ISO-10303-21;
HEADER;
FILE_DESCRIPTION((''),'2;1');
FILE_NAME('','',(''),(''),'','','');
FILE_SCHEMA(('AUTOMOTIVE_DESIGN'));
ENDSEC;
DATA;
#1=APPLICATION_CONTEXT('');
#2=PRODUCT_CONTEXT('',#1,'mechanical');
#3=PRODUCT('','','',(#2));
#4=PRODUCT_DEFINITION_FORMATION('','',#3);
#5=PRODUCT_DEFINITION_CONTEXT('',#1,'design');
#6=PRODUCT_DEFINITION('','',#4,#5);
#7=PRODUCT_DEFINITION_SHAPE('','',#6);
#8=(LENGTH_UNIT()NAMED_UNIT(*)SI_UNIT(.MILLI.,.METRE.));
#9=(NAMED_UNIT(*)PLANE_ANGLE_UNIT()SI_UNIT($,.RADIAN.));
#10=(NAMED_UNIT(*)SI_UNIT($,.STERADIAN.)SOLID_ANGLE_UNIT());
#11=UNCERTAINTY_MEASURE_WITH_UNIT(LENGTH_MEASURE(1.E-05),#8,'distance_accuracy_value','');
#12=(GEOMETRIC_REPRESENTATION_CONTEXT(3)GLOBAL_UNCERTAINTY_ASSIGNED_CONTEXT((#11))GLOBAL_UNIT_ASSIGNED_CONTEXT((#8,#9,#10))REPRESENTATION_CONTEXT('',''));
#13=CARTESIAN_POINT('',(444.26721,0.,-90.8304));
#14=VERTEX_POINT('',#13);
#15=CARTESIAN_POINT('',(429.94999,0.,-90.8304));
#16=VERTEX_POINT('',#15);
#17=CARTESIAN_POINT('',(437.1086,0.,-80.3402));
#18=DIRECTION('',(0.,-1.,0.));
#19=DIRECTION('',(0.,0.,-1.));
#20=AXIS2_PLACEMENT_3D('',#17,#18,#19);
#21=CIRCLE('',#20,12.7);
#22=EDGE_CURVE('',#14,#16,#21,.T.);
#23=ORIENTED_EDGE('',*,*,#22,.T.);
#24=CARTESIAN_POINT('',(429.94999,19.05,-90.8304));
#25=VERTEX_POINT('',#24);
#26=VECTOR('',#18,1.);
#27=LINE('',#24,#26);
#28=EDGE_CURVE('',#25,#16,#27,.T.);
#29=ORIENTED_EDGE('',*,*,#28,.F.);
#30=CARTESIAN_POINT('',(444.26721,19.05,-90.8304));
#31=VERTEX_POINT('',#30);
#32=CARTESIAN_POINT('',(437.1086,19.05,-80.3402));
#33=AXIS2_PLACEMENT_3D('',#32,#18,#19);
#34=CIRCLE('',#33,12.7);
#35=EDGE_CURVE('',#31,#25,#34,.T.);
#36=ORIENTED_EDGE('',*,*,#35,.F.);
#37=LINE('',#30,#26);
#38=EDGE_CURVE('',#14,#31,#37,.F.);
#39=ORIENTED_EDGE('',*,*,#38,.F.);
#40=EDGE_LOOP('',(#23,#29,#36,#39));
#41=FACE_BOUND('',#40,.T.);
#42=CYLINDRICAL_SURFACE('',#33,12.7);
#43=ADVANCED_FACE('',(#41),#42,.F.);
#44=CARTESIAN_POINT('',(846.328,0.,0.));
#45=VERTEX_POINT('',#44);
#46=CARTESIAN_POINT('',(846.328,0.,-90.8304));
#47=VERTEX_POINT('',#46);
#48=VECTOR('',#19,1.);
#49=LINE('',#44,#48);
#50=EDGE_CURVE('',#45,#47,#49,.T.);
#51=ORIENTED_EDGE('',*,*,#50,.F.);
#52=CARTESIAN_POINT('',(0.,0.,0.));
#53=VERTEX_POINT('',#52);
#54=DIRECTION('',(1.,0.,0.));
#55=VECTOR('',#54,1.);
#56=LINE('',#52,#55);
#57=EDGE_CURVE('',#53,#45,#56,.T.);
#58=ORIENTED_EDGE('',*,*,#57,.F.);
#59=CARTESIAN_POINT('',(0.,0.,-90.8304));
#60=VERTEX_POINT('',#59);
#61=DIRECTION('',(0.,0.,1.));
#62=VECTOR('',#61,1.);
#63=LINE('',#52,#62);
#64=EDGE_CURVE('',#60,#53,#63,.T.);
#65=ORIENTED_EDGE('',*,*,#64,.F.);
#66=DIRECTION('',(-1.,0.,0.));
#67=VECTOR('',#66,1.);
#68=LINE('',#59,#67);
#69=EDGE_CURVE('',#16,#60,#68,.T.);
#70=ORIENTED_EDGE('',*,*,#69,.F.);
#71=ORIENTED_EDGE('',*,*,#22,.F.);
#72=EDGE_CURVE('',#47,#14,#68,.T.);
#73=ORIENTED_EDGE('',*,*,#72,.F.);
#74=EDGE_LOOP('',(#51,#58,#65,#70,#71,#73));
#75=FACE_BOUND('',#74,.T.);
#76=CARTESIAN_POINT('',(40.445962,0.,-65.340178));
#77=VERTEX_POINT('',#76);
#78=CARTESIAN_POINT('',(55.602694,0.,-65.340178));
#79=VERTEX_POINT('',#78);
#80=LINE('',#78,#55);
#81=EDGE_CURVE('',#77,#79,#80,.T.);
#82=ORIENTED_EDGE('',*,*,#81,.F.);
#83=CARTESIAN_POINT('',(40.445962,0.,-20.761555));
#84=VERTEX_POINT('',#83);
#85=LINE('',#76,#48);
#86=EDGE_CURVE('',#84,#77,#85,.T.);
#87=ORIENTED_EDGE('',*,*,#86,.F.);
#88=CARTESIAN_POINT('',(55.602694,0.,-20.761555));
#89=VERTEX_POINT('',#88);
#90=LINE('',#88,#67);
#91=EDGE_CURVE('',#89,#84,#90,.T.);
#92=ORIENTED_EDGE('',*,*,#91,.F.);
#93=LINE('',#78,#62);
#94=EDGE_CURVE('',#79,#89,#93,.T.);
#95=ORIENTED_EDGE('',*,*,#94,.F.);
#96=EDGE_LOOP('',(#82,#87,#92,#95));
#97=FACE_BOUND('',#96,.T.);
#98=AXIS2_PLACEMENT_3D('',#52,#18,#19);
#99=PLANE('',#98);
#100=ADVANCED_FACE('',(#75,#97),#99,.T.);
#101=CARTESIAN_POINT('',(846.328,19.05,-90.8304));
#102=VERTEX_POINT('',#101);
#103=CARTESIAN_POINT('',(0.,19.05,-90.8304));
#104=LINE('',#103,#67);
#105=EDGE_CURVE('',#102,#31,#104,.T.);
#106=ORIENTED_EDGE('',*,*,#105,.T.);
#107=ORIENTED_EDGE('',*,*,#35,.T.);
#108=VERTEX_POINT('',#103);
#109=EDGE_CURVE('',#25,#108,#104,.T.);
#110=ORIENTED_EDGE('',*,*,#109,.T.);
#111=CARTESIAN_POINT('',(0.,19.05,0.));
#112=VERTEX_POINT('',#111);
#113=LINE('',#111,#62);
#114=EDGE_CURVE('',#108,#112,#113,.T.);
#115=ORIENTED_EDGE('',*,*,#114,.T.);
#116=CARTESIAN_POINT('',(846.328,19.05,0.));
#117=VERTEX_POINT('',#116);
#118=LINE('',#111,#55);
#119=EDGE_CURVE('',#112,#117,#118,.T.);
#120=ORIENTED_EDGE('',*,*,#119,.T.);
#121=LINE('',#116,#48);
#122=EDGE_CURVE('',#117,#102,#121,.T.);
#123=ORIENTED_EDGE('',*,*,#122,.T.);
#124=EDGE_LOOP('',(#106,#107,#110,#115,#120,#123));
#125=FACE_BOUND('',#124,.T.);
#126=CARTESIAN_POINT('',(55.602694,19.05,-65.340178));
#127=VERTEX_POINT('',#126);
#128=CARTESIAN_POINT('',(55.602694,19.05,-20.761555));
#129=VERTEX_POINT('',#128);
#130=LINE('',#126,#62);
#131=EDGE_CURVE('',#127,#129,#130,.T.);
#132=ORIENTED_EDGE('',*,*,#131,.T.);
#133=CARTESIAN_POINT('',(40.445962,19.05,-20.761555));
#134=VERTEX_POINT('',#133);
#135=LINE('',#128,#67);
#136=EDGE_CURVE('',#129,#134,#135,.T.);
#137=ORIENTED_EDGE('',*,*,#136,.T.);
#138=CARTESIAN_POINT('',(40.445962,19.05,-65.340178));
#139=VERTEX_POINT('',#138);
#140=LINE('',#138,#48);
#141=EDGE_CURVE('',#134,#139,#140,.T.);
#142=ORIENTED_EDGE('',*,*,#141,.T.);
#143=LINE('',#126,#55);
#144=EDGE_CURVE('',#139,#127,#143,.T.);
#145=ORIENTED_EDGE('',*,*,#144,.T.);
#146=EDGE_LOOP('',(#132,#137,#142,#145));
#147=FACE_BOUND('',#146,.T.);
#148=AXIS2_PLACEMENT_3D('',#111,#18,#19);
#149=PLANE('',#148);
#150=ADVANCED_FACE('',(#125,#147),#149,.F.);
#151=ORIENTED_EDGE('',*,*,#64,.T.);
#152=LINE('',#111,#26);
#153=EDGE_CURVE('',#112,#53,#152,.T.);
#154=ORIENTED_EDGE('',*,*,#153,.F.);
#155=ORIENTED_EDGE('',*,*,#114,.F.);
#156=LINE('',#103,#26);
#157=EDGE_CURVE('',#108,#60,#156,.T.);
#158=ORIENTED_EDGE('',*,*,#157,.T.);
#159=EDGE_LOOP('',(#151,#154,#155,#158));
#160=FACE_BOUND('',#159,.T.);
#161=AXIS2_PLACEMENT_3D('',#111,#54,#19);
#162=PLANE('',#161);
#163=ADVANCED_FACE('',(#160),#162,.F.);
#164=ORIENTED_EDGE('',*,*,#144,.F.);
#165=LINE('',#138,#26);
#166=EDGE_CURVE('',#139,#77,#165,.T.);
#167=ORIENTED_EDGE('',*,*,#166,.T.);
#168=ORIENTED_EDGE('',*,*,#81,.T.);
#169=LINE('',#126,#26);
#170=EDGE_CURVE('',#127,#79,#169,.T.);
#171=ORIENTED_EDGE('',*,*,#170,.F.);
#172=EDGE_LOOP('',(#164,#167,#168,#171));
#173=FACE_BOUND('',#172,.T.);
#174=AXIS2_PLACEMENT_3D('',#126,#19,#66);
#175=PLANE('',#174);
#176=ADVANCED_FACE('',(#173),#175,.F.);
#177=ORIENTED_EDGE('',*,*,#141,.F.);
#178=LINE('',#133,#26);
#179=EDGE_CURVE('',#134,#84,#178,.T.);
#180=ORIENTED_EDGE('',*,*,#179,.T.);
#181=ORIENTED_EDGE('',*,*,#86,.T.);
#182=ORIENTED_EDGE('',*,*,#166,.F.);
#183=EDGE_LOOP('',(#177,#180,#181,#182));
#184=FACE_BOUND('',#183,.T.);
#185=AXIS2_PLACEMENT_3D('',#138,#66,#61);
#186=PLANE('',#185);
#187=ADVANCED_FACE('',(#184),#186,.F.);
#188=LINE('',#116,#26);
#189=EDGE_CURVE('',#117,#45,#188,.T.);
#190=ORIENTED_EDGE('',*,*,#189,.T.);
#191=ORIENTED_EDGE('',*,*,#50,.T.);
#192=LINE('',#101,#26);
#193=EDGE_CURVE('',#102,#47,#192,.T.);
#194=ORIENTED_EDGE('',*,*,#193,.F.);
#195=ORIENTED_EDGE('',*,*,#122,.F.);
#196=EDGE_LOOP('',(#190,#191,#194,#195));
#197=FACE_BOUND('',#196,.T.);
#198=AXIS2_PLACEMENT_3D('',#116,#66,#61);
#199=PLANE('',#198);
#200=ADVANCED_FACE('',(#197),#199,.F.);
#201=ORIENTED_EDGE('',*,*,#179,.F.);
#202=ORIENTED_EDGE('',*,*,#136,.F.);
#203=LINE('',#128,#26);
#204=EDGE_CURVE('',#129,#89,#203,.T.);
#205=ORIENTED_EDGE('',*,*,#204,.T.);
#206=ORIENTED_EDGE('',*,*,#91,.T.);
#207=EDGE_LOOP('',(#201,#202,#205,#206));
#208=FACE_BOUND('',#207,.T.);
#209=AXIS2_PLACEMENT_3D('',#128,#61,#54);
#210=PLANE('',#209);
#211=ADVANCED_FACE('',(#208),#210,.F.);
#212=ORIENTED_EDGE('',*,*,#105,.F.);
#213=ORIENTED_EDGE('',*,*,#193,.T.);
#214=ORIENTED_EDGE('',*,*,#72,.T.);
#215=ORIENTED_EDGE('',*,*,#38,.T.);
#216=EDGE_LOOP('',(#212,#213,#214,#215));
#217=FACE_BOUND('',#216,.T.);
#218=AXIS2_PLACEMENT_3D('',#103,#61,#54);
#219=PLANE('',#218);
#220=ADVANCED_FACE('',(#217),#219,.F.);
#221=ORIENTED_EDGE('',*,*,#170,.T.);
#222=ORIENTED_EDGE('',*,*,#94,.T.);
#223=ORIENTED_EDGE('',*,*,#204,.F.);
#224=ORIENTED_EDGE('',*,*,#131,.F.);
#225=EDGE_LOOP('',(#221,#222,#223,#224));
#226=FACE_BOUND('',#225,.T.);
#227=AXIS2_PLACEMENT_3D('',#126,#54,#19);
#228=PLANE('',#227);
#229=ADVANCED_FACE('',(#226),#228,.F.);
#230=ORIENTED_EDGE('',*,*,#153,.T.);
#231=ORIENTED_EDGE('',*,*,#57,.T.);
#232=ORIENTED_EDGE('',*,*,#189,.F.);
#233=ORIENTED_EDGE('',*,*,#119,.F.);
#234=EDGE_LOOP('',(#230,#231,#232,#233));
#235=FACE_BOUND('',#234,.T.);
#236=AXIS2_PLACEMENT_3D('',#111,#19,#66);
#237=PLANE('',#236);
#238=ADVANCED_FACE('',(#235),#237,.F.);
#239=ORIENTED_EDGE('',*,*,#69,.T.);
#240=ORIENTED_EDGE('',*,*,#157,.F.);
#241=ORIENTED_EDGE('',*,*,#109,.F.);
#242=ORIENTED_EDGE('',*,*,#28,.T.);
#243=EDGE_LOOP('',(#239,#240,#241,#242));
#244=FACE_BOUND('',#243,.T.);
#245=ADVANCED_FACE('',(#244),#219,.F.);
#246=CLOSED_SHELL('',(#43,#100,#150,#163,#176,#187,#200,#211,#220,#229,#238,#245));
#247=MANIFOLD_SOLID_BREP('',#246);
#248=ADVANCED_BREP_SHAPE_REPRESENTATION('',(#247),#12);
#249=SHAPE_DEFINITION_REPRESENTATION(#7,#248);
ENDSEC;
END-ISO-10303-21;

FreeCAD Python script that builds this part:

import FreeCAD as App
import Part
import Sketcher

V = App.Vector
Q = App.Units.Quantity


def add_polygon(sketch, points):
    """Adds a closed chain of lines whose ends are joined by coincident constraints."""
    first, n = sketch.GeometryCount, len(points)
    for a, b in zip(points, points[1:] + points[:1]):
        sketch.addGeometry(Part.LineSegment(App.Vector(*a, 0), App.Vector(*b, 0)), False)
    for i in range(n):
        sketch.addConstraint(Sketcher.Constraint("Coincident", first + i, 2, first + (i + 1) % n, 1))

doc = App.newDocument("Part")
body = doc.addObject("PartDesign::Body", "Body")

sketch1 = doc.addObject("Sketcher::SketchObject", "Sketch")
body.addObject(sketch1)
sketch1.AttachmentSupport = (doc.XZ_Plane, [""])
sketch1.MapMode = "FlatFace"
add_polygon(sketch1, [(0, -91), (0, 0), (846, 0), (846, -91)])
sketch1.addConstraint([
    Sketcher.Constraint("Vertical", 0),
    Sketcher.Constraint("Horizontal", 1),
    Sketcher.Constraint("Vertical", 2),
    Sketcher.Constraint("Horizontal", 3),
    Sketcher.Constraint("Coincident", 0, 2, -1, 1),
    Sketcher.Constraint("DistanceX", 1, 1, 1, 2, Q("33.32 in")),
    Sketcher.Constraint("DistanceY", 0, 1, 0, 2, Q("3.576 in")),
])
pad1 = doc.addObject("PartDesign::Pad", "Pad")
body.addObject(pad1)
pad1.Profile = sketch1
pad1.Length = Q("0.75 in")
pad1.Reversed = True

sketch2 = doc.addObject("Sketcher::SketchObject", "Sketch001")
body.addObject(sketch2)
sketch2.AttachmentSupport = (doc.XZ_Plane, [""])
sketch2.MapMode = "FlatFace"
sketch2.addGeometry(Part.Circle(V(437, -80, 0), V(0, 0, 1), 13), False)
sketch2.addConstraint([
    Sketcher.Constraint("Diameter", 0, Q("1 in")),
    Sketcher.Constraint("DistanceX", -1, 1, 0, 3, Q("17.209 in")),
    Sketcher.Constraint("DistanceY", 0, 3, -1, 1, Q("3.163 in")),
])
pocket1 = doc.addObject("PartDesign::Pocket", "Pocket")
body.addObject(pocket1)
pocket1.Profile = sketch2
pocket1.Type = "ThroughAll"

sketch3 = doc.addObject("Sketcher::SketchObject", "Sketch002")
body.addObject(sketch3)
sketch3.AttachmentSupport = (doc.XZ_Plane, [""])
sketch3.MapMode = "FlatFace"
add_polygon(sketch3, [(40, -21), (40, -65), (56, -65), (56, -21)])
sketch3.addConstraint([
    Sketcher.Constraint("Vertical", 0),
    Sketcher.Constraint("Horizontal", 1),
    Sketcher.Constraint("Vertical", 2),
    Sketcher.Constraint("Horizontal", 3),
    Sketcher.Constraint("DistanceX", 1, 1, 1, 2, Q("15.156732 mm")),
    Sketcher.Constraint("DistanceY", 0, 2, 0, 1, Q("44.578623 mm")),
    Sketcher.Constraint("DistanceX", -1, 1, 0, 2, Q("40.445962 mm")),
    Sketcher.Constraint("DistanceY", 0, 2, -1, 1, Q("65.340178 mm")),
])
pocket2 = doc.addObject("PartDesign::Pocket", "Pocket001")
body.addObject(pocket2)
pocket2.Profile = sketch3
pocket2.Type = "ThroughAll"

doc.recompute()
